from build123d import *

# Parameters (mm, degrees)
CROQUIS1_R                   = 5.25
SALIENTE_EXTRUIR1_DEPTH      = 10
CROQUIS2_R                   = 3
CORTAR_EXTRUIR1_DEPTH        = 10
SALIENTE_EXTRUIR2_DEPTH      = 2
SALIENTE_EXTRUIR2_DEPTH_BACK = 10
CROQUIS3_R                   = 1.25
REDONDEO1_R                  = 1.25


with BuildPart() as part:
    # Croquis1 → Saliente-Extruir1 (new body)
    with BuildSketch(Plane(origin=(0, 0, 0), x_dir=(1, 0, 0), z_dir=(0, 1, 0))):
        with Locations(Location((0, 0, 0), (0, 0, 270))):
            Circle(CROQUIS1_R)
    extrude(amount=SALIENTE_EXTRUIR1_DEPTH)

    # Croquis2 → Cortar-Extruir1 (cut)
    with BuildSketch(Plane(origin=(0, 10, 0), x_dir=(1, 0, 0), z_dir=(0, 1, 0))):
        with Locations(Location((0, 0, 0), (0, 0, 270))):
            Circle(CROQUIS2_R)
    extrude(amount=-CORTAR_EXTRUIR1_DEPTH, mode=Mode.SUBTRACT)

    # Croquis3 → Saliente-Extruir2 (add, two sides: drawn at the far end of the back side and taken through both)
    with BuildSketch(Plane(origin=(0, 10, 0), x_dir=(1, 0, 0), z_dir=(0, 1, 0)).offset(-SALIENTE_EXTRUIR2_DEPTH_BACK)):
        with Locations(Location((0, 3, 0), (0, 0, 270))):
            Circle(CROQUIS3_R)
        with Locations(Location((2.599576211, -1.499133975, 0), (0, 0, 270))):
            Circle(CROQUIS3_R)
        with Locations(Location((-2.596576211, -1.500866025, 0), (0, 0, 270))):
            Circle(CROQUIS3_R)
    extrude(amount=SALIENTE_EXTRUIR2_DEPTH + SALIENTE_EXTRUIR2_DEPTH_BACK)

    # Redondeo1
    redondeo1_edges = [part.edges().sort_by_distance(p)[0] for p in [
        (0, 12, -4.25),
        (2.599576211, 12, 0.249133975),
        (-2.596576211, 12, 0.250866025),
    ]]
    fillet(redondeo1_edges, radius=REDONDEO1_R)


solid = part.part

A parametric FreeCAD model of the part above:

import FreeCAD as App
import Part
import Sketcher

V = App.Vector


def edges_at(feature, points):
    """Names of the edges that pass closest to the given points."""
    edges = feature.Shape.Edges
    near = lambda p: min(range(len(edges)), key=lambda i: edges[i].distToShape(Part.Vertex(*p))[0])
    return sorted({f"Edge{near(p) + 1}" for p in points})

doc = App.newDocument("Part")
body = doc.addObject("PartDesign::Body", "Body")

sketch1 = body.newObject("Sketcher::SketchObject", "Sketch")
sketch1.AttachmentSupport = (doc.getObject("XZ_Plane"), [""])
sketch1.MapMode = "FlatFace"
sketch1.addGeometry(Part.Circle(V(0, 0, 0), V(0, 0, 1), 5), False)
sketch1.addConstraint(Sketcher.Constraint("Coincident", 0, 3, -1, 1))
sketch1.addConstraint(Sketcher.Constraint("Diameter", 0, 10.5))
pad1 = body.newObject("PartDesign::Pad", "Pad")
pad1.Profile = sketch1
pad1.Length = 10
pad1.Reversed = True

sketch2 = body.newObject("Sketcher::SketchObject", "Sketch001")
sketch2.AttachmentSupport = (doc.getObject("XZ_Plane"), [""])
sketch2.MapMode = "FlatFace"
sketch2.AttachmentOffset = App.Placement(V(0, 0, -10), App.Rotation())
sketch2.addGeometry(Part.Circle(V(0, 0, 0), V(0, 0, 1), 3), False)
sketch2.addConstraint(Sketcher.Constraint("Coincident", 0, 3, -1, 1))
sketch2.addConstraint(Sketcher.Constraint("Diameter", 0, 6.0))
pocket1 = body.newObject("PartDesign::Pocket", "Pocket")
pocket1.Profile = sketch2
pocket1.Length = 10
pocket1.Reversed = True

sketch3 = body.newObject("Sketcher::SketchObject", "Sketch002")
sketch3.AttachmentSupport = (doc.getObject("XZ_Plane"), [""])
sketch3.MapMode = "FlatFace"
sketch3.AttachmentOffset = App.Placement(V(0, 0, -10), App.Rotation())
sketch3.addGeometry(Part.Circle(V(0, -3, 0), V(0, 0, 1), 1.2), False)
sketch3.addGeometry(Part.Circle(V(2.6, 1.5, 0), V(0, 0, 1), 1.2), False)
sketch3.addGeometry(Part.Circle(V(-2.6, 1.5, 0), V(0, 0, 1), 1.2), False)
sketch3.addConstraint(Sketcher.Constraint("Equal", 0, 1))
sketch3.addConstraint(Sketcher.Constraint("Equal", 1, 2))
sketch3.addConstraint(Sketcher.Constraint("PointOnObject", 0, 3, -2))
sketch3.addConstraint(Sketcher.Constraint("Diameter", 0, 2.5))
sketch3.addConstraint(Sketcher.Constraint("DistanceY", 0, 3, -1, 1, 3.0))
sketch3.addConstraint(Sketcher.Constraint("DistanceX", -1, 1, 1, 3, 2.599576))
sketch3.addConstraint(Sketcher.Constraint("DistanceY", -1, 1, 1, 3, 1.499134))
sketch3.addConstraint(Sketcher.Constraint("DistanceX", 2, 3, -1, 1, 2.596576))
sketch3.addConstraint(Sketcher.Constraint("DistanceY", -1, 1, 2, 3, 1.500866))
pad2 = body.newObject("PartDesign::Pad", "Pad001")
pad2.Profile = sketch3
pad2.Type = "TwoLengths"
pad2.Length = 2
pad2.Length2 = 10
pad2.Reversed = True
doc.recompute()

fillet = body.newObject("PartDesign::Fillet", "Fillet")
fillet.Base = (pad2, edges_at(pad2, [(0, 12, -4.25), (2.6, 12, 0.249), (-2.597, 12, 0.251)]))
fillet.Radius = 1.25

doc.recompute()
